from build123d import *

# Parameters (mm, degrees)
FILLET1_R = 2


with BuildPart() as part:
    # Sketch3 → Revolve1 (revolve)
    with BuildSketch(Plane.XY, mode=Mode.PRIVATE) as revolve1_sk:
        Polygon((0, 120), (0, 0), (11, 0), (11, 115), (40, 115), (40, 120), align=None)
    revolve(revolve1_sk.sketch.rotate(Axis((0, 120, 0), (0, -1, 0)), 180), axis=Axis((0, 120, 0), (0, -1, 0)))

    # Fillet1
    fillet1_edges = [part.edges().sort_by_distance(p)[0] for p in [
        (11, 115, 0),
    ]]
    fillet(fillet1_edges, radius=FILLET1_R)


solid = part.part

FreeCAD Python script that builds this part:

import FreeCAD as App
import Part
import Sketcher


def edges_at(feature, points):
    """Names of the edges that pass closest to the given points."""
    edges = feature.Shape.Edges
    near = lambda p: min(range(len(edges)), key=lambda i: edges[i].distToShape(Part.Vertex(*p))[0])
    return sorted({f"Edge{near(p) + 1}" for p in points})

doc = App.newDocument("Part")
body = doc.addObject("PartDesign::Body", "Body")

sketch1 = doc.addObject("Sketcher::SketchObject", "Sketch")
body.addObject(sketch1)
sketch1.AttachmentSupport = (doc.XY_Plane, [""])
sketch1.MapMode = "FlatFace"
sketch1.addGeometry([
    Part.LineSegment(App.Vector(0, 120, 0), App.Vector(0, 0, 0)),
    Part.LineSegment(App.Vector(0, 0, 0), App.Vector(11, 0, 0)),
    Part.LineSegment(App.Vector(11, 0, 0), App.Vector(11, 115, 0)),
    Part.LineSegment(App.Vector(11, 115, 0), App.Vector(40, 115, 0)),
    Part.LineSegment(App.Vector(40, 115, 0), App.Vector(40, 120, 0)),
    Part.LineSegment(App.Vector(40, 120, 0), App.Vector(0, 120, 0)),
], False)
sketch1.addConstraint([
    Sketcher.Constraint("Coincident", 0, 2, 1, 1),
    Sketcher.Constraint("Coincident", 1, 2, 2, 1),
    Sketcher.Constraint("Coincident", 2, 2, 3, 1),
    Sketcher.Constraint("Coincident", 3, 2, 4, 1),
    Sketcher.Constraint("Coincident", 4, 2, 5, 1),
    Sketcher.Constraint("Coincident", 5, 2, 0, 1),
    Sketcher.Constraint("Vertical", 0),
    Sketcher.Constraint("Horizontal", 1),
    Sketcher.Constraint("Vertical", 2),
    Sketcher.Constraint("Horizontal", 3),
    Sketcher.Constraint("Vertical", 4),
    Sketcher.Constraint("Horizontal", 5),
    Sketcher.Constraint("Coincident", 0, 2, -1, 1),
    Sketcher.Constraint("DistanceX", 1, 1, 1, 2, 11.0),
    Sketcher.Constraint("DistanceX", 3, 1, 3, 2, 29.0),
    Sketcher.Constraint("DistanceY", 0, 2, 0, 1, 120.0),
    Sketcher.Constraint("DistanceY", 2, 1, 2, 2, 115.0),
])
revolution = doc.addObject("PartDesign::Revolution", "Revolution")
body.addObject(revolution)
revolution.Profile = sketch1
revolution.ReferenceAxis = (sketch1, ["V_Axis"])
revolution.Angle = 360
doc.recompute()

fillet = doc.addObject("PartDesign::Fillet", "Fillet")
body.addObject(fillet)
fillet.Base = (revolution, edges_at(revolution, [(11, 115, 0)]))
fillet.Radius = 2

doc.recompute()
